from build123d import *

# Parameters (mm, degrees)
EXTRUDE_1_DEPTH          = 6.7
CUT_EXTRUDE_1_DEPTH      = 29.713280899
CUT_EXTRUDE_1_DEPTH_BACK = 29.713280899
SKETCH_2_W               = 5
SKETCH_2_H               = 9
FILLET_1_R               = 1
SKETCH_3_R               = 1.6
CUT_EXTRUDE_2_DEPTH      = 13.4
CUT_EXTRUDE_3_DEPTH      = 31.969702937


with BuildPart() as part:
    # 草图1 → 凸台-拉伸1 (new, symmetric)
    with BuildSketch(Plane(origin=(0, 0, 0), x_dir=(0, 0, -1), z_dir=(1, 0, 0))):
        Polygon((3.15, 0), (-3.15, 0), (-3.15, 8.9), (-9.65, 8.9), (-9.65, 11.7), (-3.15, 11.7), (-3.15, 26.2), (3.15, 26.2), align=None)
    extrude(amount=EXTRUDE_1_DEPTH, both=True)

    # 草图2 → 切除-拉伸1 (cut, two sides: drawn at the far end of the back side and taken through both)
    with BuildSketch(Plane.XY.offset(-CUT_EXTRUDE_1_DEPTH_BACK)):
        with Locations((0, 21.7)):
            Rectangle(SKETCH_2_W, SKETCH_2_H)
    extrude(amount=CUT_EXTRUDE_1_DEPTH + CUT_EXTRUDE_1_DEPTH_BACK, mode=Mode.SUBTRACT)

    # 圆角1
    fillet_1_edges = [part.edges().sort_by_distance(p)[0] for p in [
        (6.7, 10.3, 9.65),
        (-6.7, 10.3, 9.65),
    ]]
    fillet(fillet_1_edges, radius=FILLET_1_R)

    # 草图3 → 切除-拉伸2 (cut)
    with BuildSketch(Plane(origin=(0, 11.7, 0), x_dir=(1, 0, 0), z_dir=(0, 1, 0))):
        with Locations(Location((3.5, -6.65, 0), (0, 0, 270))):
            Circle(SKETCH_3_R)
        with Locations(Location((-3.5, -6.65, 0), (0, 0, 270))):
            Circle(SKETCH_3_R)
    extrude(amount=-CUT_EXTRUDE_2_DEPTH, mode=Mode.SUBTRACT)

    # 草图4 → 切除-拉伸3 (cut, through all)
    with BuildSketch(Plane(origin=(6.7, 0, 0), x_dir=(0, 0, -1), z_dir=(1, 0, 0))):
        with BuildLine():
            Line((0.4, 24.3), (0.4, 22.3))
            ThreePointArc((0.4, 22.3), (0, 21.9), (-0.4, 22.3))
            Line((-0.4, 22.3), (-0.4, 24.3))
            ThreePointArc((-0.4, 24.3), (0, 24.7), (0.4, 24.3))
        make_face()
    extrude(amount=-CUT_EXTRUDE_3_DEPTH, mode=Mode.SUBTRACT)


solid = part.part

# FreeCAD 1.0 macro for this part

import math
import FreeCAD as App
import Part
import Sketcher

V = App.Vector
Q = App.Units.Quantity


def edges_at(feature, points):
    """Names of the edges that pass closest to the given points."""
    edges = feature.Shape.Edges
    near = lambda p: min(range(len(edges)), key=lambda i: edges[i].distToShape(Part.Vertex(*p))[0])
    return sorted({f"Edge{near(p) + 1}" for p in points})

doc = App.newDocument("Part")
body = doc.addObject("PartDesign::Body", "Body")

# Sketch on YZ plane
sketch1 = body.newObject("Sketcher::SketchObject", "Sketch")
sketch1.AttachmentSupport = (doc.getObject("YZ_Plane"), [""])
sketch1.MapMode = "FlatFace"
sketch1.addGeometry([
    Part.LineSegment(V(0, 3.1, 0), V(0, -3.1, 0)),  # 0
    Part.LineSegment(V(0, -3.1, 0), V(26.2, -3.1, 0)),  # 1
    Part.LineSegment(V(26.2, -3.1, 0), V(26.2, 3.1, 0)),  # 2
    Part.LineSegment(V(26.2, 3.1, 0), V(11.7, 3.1, 0)),  # 3
    Part.LineSegment(V(11.7, 3.1, 0), V(11.7, 9.7, 0)),  # 4
    Part.LineSegment(V(11.7, 9.7, 0), V(8.9, 9.7, 0)),  # 5
    Part.LineSegment(V(8.9, 9.7, 0), V(8.9, 3.1, 0)),  # 6
    Part.LineSegment(V(8.9, 3.1, 0), V(0, 3.1, 0)),  # 7
], False)
sketch1.addConstraint([
    Sketcher.Constraint("Coincident", 0, 2, 1, 1),
    Sketcher.Constraint("Coincident", 1, 2, 2, 1),
    Sketcher.Constraint("Coincident", 2, 2, 3, 1),
    Sketcher.Constraint("Coincident", 3, 2, 4, 1),
    Sketcher.Constraint("Coincident", 4, 2, 5, 1),
    Sketcher.Constraint("Coincident", 5, 2, 6, 1),
    Sketcher.Constraint("Coincident", 6, 2, 7, 1),
    Sketcher.Constraint("Coincident", 7, 2, 0, 1),
    Sketcher.Constraint("Vertical", 0),
    Sketcher.Constraint("Horizontal", 1),
    Sketcher.Constraint("Vertical", 2),
    Sketcher.Constraint("Horizontal", 3),
    Sketcher.Constraint("Vertical", 4),
    Sketcher.Constraint("Horizontal", 5),
    Sketcher.Constraint("Vertical", 6),
    Sketcher.Constraint("Horizontal", 7),
    Sketcher.Constraint("Symmetric", 0, 2, 7, 2, -1, 1),
    Sketcher.Constraint("Horizontal", 3, 2, 6, 2),
    Sketcher.Constraint("DistanceX", 1, 1, 1, 2, Q("26.2 mm")),
    Sketcher.Constraint("DistanceX", 3, 2, 3, 1, Q("14.5 mm")),
    Sketcher.Constraint("DistanceX", 5, 2, 5, 1, Q("2.8 mm")),
    Sketcher.Constraint("DistanceY", 0, 2, 0, 1, Q("6.3 mm")),
    Sketcher.Constraint("DistanceY", 4, 1, 4, 2, Q("6.5 mm")),
])
pad1 = body.newObject("PartDesign::Pad", "Pad")
pad1.Profile = sketch1
pad1.Length = 13.4
pad1.Midplane = True

# Sketch on XY plane
sketch2 = body.newObject("Sketcher::SketchObject", "Sketch001")
sketch2.AttachmentSupport = (doc.getObject("XY_Plane"), [""])
sketch2.MapMode = "FlatFace"
sketch2.addGeometry([
    Part.LineSegment(V(-2, 26, 0), V(-2, 17, 0)),
    Part.LineSegment(V(-2, 17, 0), V(2, 17, 0)),
    Part.LineSegment(V(2, 17, 0), V(2, 26, 0)),
    Part.LineSegment(V(2, 26, 0), V(-2, 26, 0)),
], False)
sketch2.addConstraint([
    Sketcher.Constraint("Coincident", 0, 2, 1, 1),
    Sketcher.Constraint("Coincident", 1, 2, 2, 1),
    Sketcher.Constraint("Coincident", 2, 2, 3, 1),
    Sketcher.Constraint("Coincident", 3, 2, 0, 1),
    Sketcher.Constraint("Vertical", 0),
    Sketcher.Constraint("Horizontal", 1),
    Sketcher.Constraint("Vertical", 2),
    Sketcher.Constraint("Horizontal", 3),
    Sketcher.Constraint("DistanceX", 1, 1, 1, 2, Q("5 mm")),
    Sketcher.Constraint("DistanceY", 0, 2, 0, 1, Q("9 mm")),
    Sketcher.Constraint("DistanceX", 0, 2, -1, 1, Q("2.5 mm")),
    Sketcher.Constraint("DistanceY", -1, 1, 0, 2, Q("17.2 mm")),
])
pocket1 = body.newObject("PartDesign::Pocket", "Pocket")
pocket1.Profile = sketch2
pocket1.Type = "ThroughAll"
pocket1.Midplane = True
doc.recompute()

fillet = body.newObject("PartDesign::Fillet", "Fillet")
fillet.Base = (pocket1, edges_at(pocket1, [(6.7, 10.3, 9.65), (-6.7, 10.3, 9.65)]))
fillet.Radius = 1

# Sketch on XZ plane
sketch3 = body.newObject("Sketcher::SketchObject", "Sketch002")
sketch3.AttachmentSupport = (doc.getObject("XZ_Plane"), [""])
sketch3.MapMode = "FlatFace"
sketch3.AttachmentOffset = App.Placement(V(0, 0, -11.7), App.Rotation())
sketch3.addGeometry([
    Part.Circle(V(3.5, 6.7, 0), V(0, 0, 1), 1.6),
    Part.Circle(V(-3.5, 6.7, 0), V(0, 0, 1), 1.6),
], False)
sketch3.addConstraint([
    Sketcher.Constraint("Equal", 0, 1),
    Sketcher.Constraint("Symmetric", 0, 3, 1, 3, -2),
    Sketcher.Constraint("Diameter", 0, Q("3.2 mm")),
    Sketcher.Constraint("DistanceX", 1, 3, 0, 3, Q("7 mm")),
    Sketcher.Constraint("DistanceY", -1, 1, 0, 3, Q("6.65 mm")),
])
pocket2 = body.newObject("PartDesign::Pocket", "Pocket001")
pocket2.Profile = sketch3
pocket2.Length = 13.4
pocket2.Reversed = True

# Sketch on YZ plane
sketch4 = body.newObject("Sketcher::SketchObject", "Sketch003")
sketch4.AttachmentSupport = (doc.getObject("YZ_Plane"), [""])
sketch4.MapMode = "FlatFace"
sketch4.AttachmentOffset = App.Placement(V(0, 0, 6.7), App.Rotation())
sketch4.addGeometry([
    Part.LineSegment(V(22.3, -0.4, 0), V(24.3, -0.4, 0)),
    Part.ArcOfCircle(Part.Circle(V(24.3, 0, 0), V(0, 0, 1), 0.4), math.radians(-90), math.radians(90)),
    Part.LineSegment(V(24.3, 0.4, 0), V(22.3, 0.4, 0)),
    Part.ArcOfCircle(Part.Circle(V(22.3, 0, 0), V(0, 0, 1), 0.4), math.radians(90), math.radians(270)),
], False)
sketch4.addConstraint([
    Sketcher.Constraint("Tangent", 0, 2, 1, 1),
    Sketcher.Constraint("Tangent", 1, 2, 2, 1),
    Sketcher.Constraint("Tangent", 2, 2, 3, 1),
    Sketcher.Constraint("Tangent", 3, 2, 0, 1),
    Sketcher.Constraint("Horizontal", 0),
    Sketcher.Constraint("Horizontal", 2),
    Sketcher.Constraint("PointOnObject", 1, 3, -1),
    Sketcher.Constraint("Radius", 1, Q("0.4 mm")),
    Sketcher.Constraint("DistanceX", 0, 1, 0, 2, Q("2 mm")),
    Sketcher.Constraint("DistanceX", -1, 1, 1, 3, Q("24.3 mm")),
])
pocket3 = body.newObject("PartDesign::Pocket", "Pocket002")
pocket3.Profile = sketch4
pocket3.Type = "ThroughAll"

doc.recompute()
